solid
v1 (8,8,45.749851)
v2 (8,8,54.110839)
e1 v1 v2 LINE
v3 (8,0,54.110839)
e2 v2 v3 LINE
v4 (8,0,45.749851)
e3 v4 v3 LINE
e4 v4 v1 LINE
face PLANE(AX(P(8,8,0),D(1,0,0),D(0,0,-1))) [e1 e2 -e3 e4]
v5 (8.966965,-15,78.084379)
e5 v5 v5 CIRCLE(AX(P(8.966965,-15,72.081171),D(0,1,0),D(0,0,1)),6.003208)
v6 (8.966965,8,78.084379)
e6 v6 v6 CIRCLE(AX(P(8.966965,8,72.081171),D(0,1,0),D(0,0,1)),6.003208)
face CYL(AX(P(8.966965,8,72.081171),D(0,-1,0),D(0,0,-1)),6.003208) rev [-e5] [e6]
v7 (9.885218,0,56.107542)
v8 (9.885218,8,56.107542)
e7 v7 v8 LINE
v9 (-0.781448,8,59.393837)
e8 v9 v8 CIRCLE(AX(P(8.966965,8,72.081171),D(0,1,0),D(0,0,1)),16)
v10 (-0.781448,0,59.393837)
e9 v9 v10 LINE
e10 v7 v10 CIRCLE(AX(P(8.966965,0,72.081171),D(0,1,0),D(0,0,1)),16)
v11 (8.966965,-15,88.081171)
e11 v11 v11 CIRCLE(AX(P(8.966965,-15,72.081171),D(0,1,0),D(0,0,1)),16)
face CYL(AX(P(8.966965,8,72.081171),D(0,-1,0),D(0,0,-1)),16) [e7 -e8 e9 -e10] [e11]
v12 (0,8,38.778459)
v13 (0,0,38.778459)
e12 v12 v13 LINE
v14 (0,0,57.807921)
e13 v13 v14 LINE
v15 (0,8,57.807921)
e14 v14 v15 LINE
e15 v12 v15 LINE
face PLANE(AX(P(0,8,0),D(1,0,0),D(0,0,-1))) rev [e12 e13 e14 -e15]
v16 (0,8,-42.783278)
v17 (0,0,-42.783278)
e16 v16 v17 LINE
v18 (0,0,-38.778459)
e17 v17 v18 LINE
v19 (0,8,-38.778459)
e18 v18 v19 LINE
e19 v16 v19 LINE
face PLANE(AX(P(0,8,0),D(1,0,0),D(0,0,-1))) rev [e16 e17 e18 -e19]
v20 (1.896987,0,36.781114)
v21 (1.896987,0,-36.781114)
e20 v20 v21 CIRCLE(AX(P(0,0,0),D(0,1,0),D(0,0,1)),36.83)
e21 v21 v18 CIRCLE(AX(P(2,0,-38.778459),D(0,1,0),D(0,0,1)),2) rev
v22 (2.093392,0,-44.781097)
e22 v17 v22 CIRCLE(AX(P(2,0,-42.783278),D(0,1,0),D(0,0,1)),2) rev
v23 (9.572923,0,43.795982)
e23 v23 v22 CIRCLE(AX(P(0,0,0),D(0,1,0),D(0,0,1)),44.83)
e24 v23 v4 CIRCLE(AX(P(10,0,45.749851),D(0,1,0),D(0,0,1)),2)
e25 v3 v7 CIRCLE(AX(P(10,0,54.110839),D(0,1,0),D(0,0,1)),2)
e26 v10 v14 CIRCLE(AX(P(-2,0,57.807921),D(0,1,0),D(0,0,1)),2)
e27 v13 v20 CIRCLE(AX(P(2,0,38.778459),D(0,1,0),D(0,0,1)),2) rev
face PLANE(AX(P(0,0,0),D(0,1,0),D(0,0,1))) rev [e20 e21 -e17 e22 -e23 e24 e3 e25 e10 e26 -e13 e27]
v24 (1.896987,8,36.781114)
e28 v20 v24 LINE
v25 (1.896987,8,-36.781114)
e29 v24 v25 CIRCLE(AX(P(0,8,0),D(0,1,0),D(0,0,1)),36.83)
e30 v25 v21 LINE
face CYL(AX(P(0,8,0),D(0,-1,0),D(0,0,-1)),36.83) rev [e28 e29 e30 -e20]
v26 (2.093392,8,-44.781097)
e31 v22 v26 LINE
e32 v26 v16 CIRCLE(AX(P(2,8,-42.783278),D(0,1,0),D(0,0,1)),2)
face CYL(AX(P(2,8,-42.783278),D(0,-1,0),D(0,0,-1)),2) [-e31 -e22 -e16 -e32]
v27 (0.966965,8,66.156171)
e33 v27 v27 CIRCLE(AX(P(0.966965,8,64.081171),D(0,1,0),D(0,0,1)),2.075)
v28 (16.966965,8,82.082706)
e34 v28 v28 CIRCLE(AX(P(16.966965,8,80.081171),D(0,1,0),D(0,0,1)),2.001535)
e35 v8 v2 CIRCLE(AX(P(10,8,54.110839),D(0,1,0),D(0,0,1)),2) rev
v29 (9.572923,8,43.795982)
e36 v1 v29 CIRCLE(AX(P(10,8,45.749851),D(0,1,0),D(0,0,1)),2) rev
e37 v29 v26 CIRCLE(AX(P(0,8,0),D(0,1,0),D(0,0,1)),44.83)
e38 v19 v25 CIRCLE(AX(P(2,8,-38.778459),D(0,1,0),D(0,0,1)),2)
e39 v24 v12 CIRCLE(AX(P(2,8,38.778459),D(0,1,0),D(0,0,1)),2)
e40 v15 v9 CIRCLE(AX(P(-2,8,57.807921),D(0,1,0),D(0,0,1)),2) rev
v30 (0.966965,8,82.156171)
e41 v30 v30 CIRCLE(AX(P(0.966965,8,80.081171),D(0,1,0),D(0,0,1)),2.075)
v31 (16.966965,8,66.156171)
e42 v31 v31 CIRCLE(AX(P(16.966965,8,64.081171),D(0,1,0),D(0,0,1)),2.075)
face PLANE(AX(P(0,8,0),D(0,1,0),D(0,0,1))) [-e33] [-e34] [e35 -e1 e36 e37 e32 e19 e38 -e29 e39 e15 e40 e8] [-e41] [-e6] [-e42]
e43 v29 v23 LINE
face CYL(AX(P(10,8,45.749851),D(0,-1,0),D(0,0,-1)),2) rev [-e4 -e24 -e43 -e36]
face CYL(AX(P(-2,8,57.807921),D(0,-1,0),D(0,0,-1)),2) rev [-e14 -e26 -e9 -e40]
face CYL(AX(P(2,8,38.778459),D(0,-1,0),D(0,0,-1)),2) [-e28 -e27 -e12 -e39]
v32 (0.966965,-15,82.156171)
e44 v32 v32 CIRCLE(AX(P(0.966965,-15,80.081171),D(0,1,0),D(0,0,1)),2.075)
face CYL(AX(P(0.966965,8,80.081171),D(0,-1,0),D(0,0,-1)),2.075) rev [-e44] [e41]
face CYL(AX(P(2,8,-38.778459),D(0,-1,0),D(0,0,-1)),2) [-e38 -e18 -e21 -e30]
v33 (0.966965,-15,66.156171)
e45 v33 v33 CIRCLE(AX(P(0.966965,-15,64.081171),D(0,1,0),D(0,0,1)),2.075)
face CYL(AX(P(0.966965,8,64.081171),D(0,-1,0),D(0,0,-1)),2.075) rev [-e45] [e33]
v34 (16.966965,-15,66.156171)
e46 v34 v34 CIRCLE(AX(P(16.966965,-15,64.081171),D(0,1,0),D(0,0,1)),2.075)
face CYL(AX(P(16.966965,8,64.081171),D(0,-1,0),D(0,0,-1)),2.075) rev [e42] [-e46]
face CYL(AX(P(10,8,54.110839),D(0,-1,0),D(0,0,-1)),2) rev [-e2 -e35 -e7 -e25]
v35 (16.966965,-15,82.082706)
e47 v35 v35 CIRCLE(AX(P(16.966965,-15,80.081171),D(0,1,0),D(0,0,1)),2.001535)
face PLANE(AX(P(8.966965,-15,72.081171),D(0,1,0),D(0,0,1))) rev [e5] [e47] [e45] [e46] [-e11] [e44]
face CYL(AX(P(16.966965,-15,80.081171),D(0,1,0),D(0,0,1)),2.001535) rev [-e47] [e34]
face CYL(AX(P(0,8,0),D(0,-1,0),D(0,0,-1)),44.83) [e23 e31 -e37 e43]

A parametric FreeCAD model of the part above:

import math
import FreeCAD as App
import Part
import Sketcher
from FreeCAD import Vector
Q = App.Units.Quantity


def edges_at(feature, points):
    """Names of the edges that pass closest to the given points."""
    edges = feature.Shape.Edges
    near = lambda p: min(range(len(edges)), key=lambda i: edges[i].distToShape(Part.Vertex(*p))[0])
    return sorted({f"Edge{near(p) + 1}" for p in points})

doc = App.newDocument("Part")
params = doc.addObject("Spreadsheet::Sheet", "Params")
for row, (alias, value) in enumerate([
    ("sketch1_radius", "16 mm"),
    ("sketch1_diameter", "4.15 mm"),
    ("sketch1_height", "8 mm"),
    ("sketch1_height2", "22 mm"),
    ("sketch1_height3", "12 mm"),
    ("pad1_length", "8 mm"),
    ("fillet_radius", "2 mm"),
    ("sketch2_diameter", "32 mm"),
    ("sketch2_diameter2", "4.15 mm"),
    ("pad2_length", "23 mm"),
], start=1):
    params.set(f"A{row}", alias)
    params.set(f"B{row}", "=" + value)
    params.setAlias(f"B{row}", alias)

body = doc.addObject("PartDesign::Body", "Body")

# Sketch on XZ plane
sketch1 = body.newObject("Sketcher::SketchObject", "Sketch")
sketch1.AttachmentSupport = (doc.getObject("XZ_Plane"), [""])
sketch1.MapMode = "FlatFace"
sketch1.addGeometry([
    Part.LineSegment(Vector(0, -44.8, 0), Vector(0, -36.8, 0)),  # 0
    Part.ArcOfCircle(Part.Circle(Vector(0, 0, 0), Vector(0, 0, 1), 36.8), math.radians(-90), math.radians(90)),  # 1
    Part.LineSegment(Vector(0, 36.8, 0), Vector(0, 58.8, 0)),  # 2
    Part.ArcOfCircle(Part.Circle(Vector(9, 72.1, 0), Vector(0, 0, 1), 16), math.radians(-93), math.radians(236)),  # 3
    Part.LineSegment(Vector(8, 56.1, 0), Vector(8, 44.1, 0)),  # 4
    Part.ArcOfCircle(Part.Circle(Vector(0, 0, 0), Vector(0, 0, 1), 44.8), math.radians(-90), math.radians(80)),  # 5
    Part.Circle(Vector(1, 80.1, 0), Vector(0, 0, 1), 2.1),  # 6
    Part.Circle(Vector(9, 72.1, 0), Vector(0, 0, 1), 6),  # 7
    Part.Circle(Vector(17, 80.1, 0), Vector(0, 0, 1), 2.1),  # 8
    Part.Circle(Vector(1, 64.1, 0), Vector(0, 0, 1), 2.1),  # 9
    Part.Circle(Vector(17, 64.1, 0), Vector(0, 0, 1), 2.1),  # 10
], False)
sketch1.addConstraint([
    Sketcher.Constraint("Coincident", 0, 2, 1, 1),
    Sketcher.Constraint("Coincident", 1, 2, 2, 1),
    Sketcher.Constraint("Coincident", 2, 2, 3, 2),
    Sketcher.Constraint("Coincident", 3, 1, 4, 1),
    Sketcher.Constraint("Coincident", 4, 2, 5, 2),
    Sketcher.Constraint("Coincident", 5, 1, 0, 1),
    Sketcher.Constraint("Vertical", 0),
    Sketcher.Constraint("Vertical", 2),
    Sketcher.Constraint("Vertical", 4),
    Sketcher.Constraint("Coincident", 1, 3, -1, 1),
    Sketcher.Constraint("Coincident", 5, 3, -1, 1),
    Sketcher.Constraint("Coincident", 7, 3, 3, 3),
    Sketcher.Constraint("Equal", 6, 8),
    Sketcher.Constraint("Equal", 8, 9),
    Sketcher.Constraint("Equal", 9, 10),
    Sketcher.Constraint("PointOnObject", 0, 2, -2),
    Sketcher.Constraint("PointOnObject", 1, 2, -2),
    Sketcher.Constraint("Horizontal", 6, 3, 8, 3),
    Sketcher.Constraint("Horizontal", 9, 3, 10, 3),
    Sketcher.Constraint("Vertical", 6, 3, 9, 3),
    Sketcher.Constraint("Vertical", 8, 3, 10, 3),
    Sketcher.Constraint("Radius", 3, Q("16 mm")),
    Sketcher.Constraint("Diameter", 6, Q("4.15 mm")),
    Sketcher.Constraint("DistanceY", 0, 1, 0, 2, Q("8 mm")),
    Sketcher.Constraint("DistanceY", 2, 1, 2, 2, Q("22 mm")),
    Sketcher.Constraint("DistanceY", 4, 2, 4, 1, Q("12 mm")),
    Sketcher.Constraint("Radius", 1, Q("36.83 mm")),
    Sketcher.Constraint("DistanceX", -1, 1, 3, 1, Q("8 mm")),
    Sketcher.Constraint("DistanceX", 6, 3, 3, 3, Q("8 mm")),
    Sketcher.Constraint("DistanceY", 3, 3, 6, 3, Q("8 mm")),
    Sketcher.Constraint("DistanceX", 3, 3, 8, 3, Q("8 mm")),
    Sketcher.Constraint("DistanceY", 9, 3, 3, 3, Q("8 mm")),
    Sketcher.Constraint("Diameter", 7, Q("12.006417 mm")),
])
sketch1.setExpression("Constraints[21]", "Params.sketch1_radius")
sketch1.setExpression("Constraints[22]", "Params.sketch1_diameter")
sketch1.setExpression("Constraints[23]", "Params.sketch1_height")
sketch1.setExpression("Constraints[24]", "Params.sketch1_height2")
sketch1.setExpression("Constraints[25]", "Params.sketch1_height3")
pad1 = body.newObject("PartDesign::Pad", "Pad")
pad1.Profile = sketch1
pad1.setExpression("Length", "Params.pad1_length")
pad1.Reversed = True
doc.recompute()

fillet = body.newObject("PartDesign::Fillet", "Fillet")
fillet.Base = (pad1, edges_at(pad1, [
    (0, 4, 58.83),
    (0, 4, 36.83),
    (0, 4, -36.83),
    (0, 4, -44.83),
    (8, 4, 44.11),
    (8, 4, 56.11),
]))
fillet.setExpression("Radius", "Params.fillet_radius")

# Sketch on XZ plane
sketch2 = body.newObject("Sketcher::SketchObject", "Sketch001")
sketch2.AttachmentSupport = (doc.getObject("XZ_Plane"), [""])
sketch2.MapMode = "FlatFace"
sketch2.AttachmentOffset = App.Placement(Vector(0, 0, 15), App.Rotation())
sketch2.addGeometry([
    Part.Circle(Vector(9, 72.1, 0), Vector(0, 0, 1), 16),  # 0
    Part.Circle(Vector(17, 80.1, 0), Vector(0, 0, 1), 2),  # 1
    Part.Circle(Vector(9, 72.1, 0), Vector(0, 0, 1), 6),  # 2
    Part.Circle(Vector(17, 64.1, 0), Vector(0, 0, 1), 2.1),  # 3
    Part.Circle(Vector(1, 80.1, 0), Vector(0, 0, 1), 2.1),  # 4
    Part.Circle(Vector(1, 64.1, 0), Vector(0, 0, 1), 2.1),  # 5
], False)
sketch2.addConstraint([
    Sketcher.Constraint("Coincident", 2, 3, 0, 3),
    Sketcher.Constraint("Equal", 3, 4),
    Sketcher.Constraint("Equal", 4, 5),
    Sketcher.Constraint("Horizontal", 1, 3, 4, 3),
    Sketcher.Constraint("Horizontal", 3, 3, 5, 3),
    Sketcher.Constraint("Vertical", 1, 3, 3, 3),
    Sketcher.Constraint("Vertical", 4, 3, 5, 3),
    Sketcher.Constraint("Diameter", 0, Q("32 mm")),
    Sketcher.Constraint("Diameter", 3, Q("4.15 mm")),
    Sketcher.Constraint("DistanceX", 0, 3, 1, 3, Q("8 mm")),
    Sketcher.Constraint("DistanceY", 0, 3, 1, 3, Q("8 mm")),
    Sketcher.Constraint("DistanceY", 3, 3, 0, 3, Q("8 mm")),
    Sketcher.Constraint("DistanceX", 4, 3, 0, 3, Q("8 mm")),
    Sketcher.Constraint("Diameter", 1, Q("4.003069 mm")),
    Sketcher.Constraint("Diameter", 2, Q("12.006417 mm")),
    Sketcher.Constraint("DistanceY", -1, 1, 0, 3, Q("72.081171 mm")),
    Sketcher.Constraint("DistanceX", -1, 1, 0, 3, Q("8.966965 mm")),
])
sketch2.setExpression("Constraints[7]", "Params.sketch2_diameter")
sketch2.setExpression("Constraints[8]", "Params.sketch2_diameter2")
pad2 = body.newObject("PartDesign::Pad", "Pad001")
pad2.Profile = sketch2
pad2.setExpression("Length", "Params.pad2_length")
pad2.Reversed = True

doc.recompute()
